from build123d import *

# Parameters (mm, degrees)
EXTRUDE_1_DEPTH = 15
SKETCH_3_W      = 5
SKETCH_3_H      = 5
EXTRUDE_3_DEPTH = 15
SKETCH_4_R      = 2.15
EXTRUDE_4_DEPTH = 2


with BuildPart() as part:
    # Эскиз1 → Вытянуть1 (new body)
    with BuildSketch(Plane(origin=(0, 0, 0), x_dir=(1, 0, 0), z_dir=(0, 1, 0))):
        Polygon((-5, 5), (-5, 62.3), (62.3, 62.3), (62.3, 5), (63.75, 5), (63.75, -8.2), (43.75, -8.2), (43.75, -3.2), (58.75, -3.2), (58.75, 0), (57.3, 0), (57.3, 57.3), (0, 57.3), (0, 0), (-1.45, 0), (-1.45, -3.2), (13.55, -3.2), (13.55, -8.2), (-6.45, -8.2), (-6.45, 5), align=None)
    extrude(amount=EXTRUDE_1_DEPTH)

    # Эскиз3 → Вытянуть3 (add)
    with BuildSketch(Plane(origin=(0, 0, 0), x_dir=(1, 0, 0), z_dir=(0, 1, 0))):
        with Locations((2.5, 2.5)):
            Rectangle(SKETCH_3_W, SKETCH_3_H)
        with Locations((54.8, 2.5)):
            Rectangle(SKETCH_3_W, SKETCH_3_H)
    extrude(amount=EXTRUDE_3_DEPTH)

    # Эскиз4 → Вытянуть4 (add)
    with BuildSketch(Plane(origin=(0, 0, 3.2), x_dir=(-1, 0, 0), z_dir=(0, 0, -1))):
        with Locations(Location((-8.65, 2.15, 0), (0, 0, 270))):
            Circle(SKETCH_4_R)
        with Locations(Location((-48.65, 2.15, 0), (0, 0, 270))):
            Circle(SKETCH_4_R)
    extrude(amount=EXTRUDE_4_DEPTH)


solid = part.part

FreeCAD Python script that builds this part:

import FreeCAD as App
import Part
import Sketcher


def add_polygon(sketch, points):
    """Adds a closed chain of lines whose ends are joined by coincident constraints."""
    first, n = sketch.GeometryCount, len(points)
    for a, b in zip(points, points[1:] + points[:1]):
        sketch.addGeometry(Part.LineSegment(App.Vector(*a, 0), App.Vector(*b, 0)), False)
    for i in range(n):
        sketch.addConstraint(Sketcher.Constraint("Coincident", first + i, 2, first + (i + 1) % n, 1))

doc = App.newDocument("Part")
body = doc.addObject("PartDesign::Body", "Body")

# Sketch on XZ plane
sketch1 = body.newObject("Sketcher::SketchObject", "Sketch")
sketch1.AttachmentSupport = (doc.getObject("XZ_Plane"), [""])
sketch1.MapMode = "FlatFace"
add_polygon(sketch1, [(-5, -62.3), (-5, -5), (-6.5, -5), (-6.5, 8.2), (13.6, 8.2), (13.6, 3.2), (-1.4, 3.2), (-1.4, 0), (0, 0), (0, -57.3), (57.3, -57.3), (57.3, 0), (58.8, 0), (58.8, 3.2), (43.8, 3.2), (43.8, 8.2), (63.8, 8.2), (63.8, -5), (62.3, -5), (62.3, -62.3)])  # lines 0-19
sketch1.addConstraint([
    Sketcher.Constraint("Vertical", 0),
    Sketcher.Constraint("Horizontal", 1),
    Sketcher.Constraint("Vertical", 2),
    Sketcher.Constraint("Horizontal", 3),
    Sketcher.Constraint("Vertical", 4),
    Sketcher.Constraint("Horizontal", 5),
    Sketcher.Constraint("Vertical", 6),
    Sketcher.Constraint("Horizontal", 7),
    Sketcher.Constraint("Vertical", 8),
    Sketcher.Constraint("Horizontal", 9),
    Sketcher.Constraint("Vertical", 10),
    Sketcher.Constraint("Horizontal", 11),
    Sketcher.Constraint("Vertical", 12),
    Sketcher.Constraint("Horizontal", 13),
    Sketcher.Constraint("Vertical", 14),
    Sketcher.Constraint("Horizontal", 15),
    Sketcher.Constraint("Vertical", 16),
    Sketcher.Constraint("Horizontal", 17),
    Sketcher.Constraint("Vertical", 18),
    Sketcher.Constraint("Horizontal", 19),
    Sketcher.Constraint("Coincident", 7, 2, -1, 1),
    Sketcher.Constraint("PointOnObject", 10, 2, -1),
    Sketcher.Constraint("Horizontal", 5, 2, 12, 2),
    Sketcher.Constraint("Horizontal", 3, 2, 14, 2),
    Sketcher.Constraint("Horizontal", 1, 2, 16, 2),
    Sketcher.Constraint("Equal", 1, 7),
    Sketcher.Constraint("Equal", 7, 11),
    Sketcher.Constraint("Equal", 5, 13),
    Sketcher.Constraint("Equal", 3, 15),
    Sketcher.Constraint("Equal", 11, 17),
    Sketcher.Constraint("Equal", 9, 0),
    Sketcher.Constraint("Equal", 0, 8),
    Sketcher.Constraint("DistanceX", 3, 1, 3, 2, 20.0),
    Sketcher.Constraint("DistanceX", 5, 2, 5, 1, 15.0),
    Sketcher.Constraint("DistanceY", 4, 2, 4, 1, 5.0),
    Sketcher.Constraint("DistanceX", 9, 1, 9, 2, 57.3),
    Sketcher.Constraint("DistanceY", 2, 1, 2, 2, 13.2),
    Sketcher.Constraint("DistanceY", 6, 2, 6, 1, 3.2),
    Sketcher.Constraint("DistanceX", 1, 2, 1, 1, 1.45),
])
pad1 = body.newObject("PartDesign::Pad", "Pad")
pad1.Profile = sketch1
pad1.Length = 15
pad1.Reversed = True

# Sketch on XZ plane
sketch2 = body.newObject("Sketcher::SketchObject", "Sketch001")
sketch2.AttachmentSupport = (doc.getObject("XZ_Plane"), [""])
sketch2.MapMode = "FlatFace"
add_polygon(sketch2, [(0, -5), (0, 0), (5, 0), (5, -5)])  # lines 0-3
add_polygon(sketch2, [(52, -5), (52, 0), (57, 0), (57, -5)])  # lines 4-7
sketch2.addConstraint([
    Sketcher.Constraint("Vertical", 0),
    Sketcher.Constraint("Horizontal", 1),
    Sketcher.Constraint("Vertical", 2),
    Sketcher.Constraint("Horizontal", 3),
    Sketcher.Constraint("Vertical", 4),
    Sketcher.Constraint("Horizontal", 5),
    Sketcher.Constraint("Vertical", 6),
    Sketcher.Constraint("Horizontal", 7),
    Sketcher.Constraint("Coincident", 0, 2, -1, 1),
    Sketcher.Constraint("PointOnObject", 4, 2, -1),
    Sketcher.Constraint("Horizontal", 3, 2, 6, 2),
    Sketcher.Constraint("Equal", 3, 5),
    Sketcher.Constraint("Equal", 7, 0),
    Sketcher.Constraint("DistanceX", 1, 1, 1, 2, 5.0),
    Sketcher.Constraint("DistanceX", -1, 1, 4, 2, 52.3),
])
pad2 = body.newObject("PartDesign::Pad", "Pad001")
pad2.Profile = sketch2
pad2.Length = 15
pad2.Reversed = True

# Sketch on XY plane
sketch3 = body.newObject("Sketcher::SketchObject", "Sketch002")
sketch3.AttachmentSupport = (doc.getObject("XY_Plane"), [""])
sketch3.MapMode = "FlatFace"
sketch3.AttachmentOffset = App.Placement(App.Vector(0, 0, 3.2), App.Rotation())
sketch3.addGeometry([
    Part.Circle(App.Vector(8.7, 2.1, 0), App.Vector(0, 0, 1), 2.1),
    Part.Circle(App.Vector(48.6, 2.1, 0), App.Vector(0, 0, 1), 2.1),
], False)
sketch3.addConstraint([
    Sketcher.Constraint("Equal", 0, 1),
    Sketcher.Constraint("Horizontal", 0, 3, 1, 3),
    Sketcher.Constraint("Diameter", 0, 4.3),
    Sketcher.Constraint("DistanceX", 0, 3, 1, 3, 40.0),
    Sketcher.Constraint("DistanceX", -1, 1, 0, 3, 8.65),
    Sketcher.Constraint("DistanceY", -1, 1, 0, 3, 2.15),
])
pad3 = body.newObject("PartDesign::Pad", "Pad002")
pad3.Profile = sketch3
pad3.Length = 2
pad3.Reversed = True

doc.recompute()
